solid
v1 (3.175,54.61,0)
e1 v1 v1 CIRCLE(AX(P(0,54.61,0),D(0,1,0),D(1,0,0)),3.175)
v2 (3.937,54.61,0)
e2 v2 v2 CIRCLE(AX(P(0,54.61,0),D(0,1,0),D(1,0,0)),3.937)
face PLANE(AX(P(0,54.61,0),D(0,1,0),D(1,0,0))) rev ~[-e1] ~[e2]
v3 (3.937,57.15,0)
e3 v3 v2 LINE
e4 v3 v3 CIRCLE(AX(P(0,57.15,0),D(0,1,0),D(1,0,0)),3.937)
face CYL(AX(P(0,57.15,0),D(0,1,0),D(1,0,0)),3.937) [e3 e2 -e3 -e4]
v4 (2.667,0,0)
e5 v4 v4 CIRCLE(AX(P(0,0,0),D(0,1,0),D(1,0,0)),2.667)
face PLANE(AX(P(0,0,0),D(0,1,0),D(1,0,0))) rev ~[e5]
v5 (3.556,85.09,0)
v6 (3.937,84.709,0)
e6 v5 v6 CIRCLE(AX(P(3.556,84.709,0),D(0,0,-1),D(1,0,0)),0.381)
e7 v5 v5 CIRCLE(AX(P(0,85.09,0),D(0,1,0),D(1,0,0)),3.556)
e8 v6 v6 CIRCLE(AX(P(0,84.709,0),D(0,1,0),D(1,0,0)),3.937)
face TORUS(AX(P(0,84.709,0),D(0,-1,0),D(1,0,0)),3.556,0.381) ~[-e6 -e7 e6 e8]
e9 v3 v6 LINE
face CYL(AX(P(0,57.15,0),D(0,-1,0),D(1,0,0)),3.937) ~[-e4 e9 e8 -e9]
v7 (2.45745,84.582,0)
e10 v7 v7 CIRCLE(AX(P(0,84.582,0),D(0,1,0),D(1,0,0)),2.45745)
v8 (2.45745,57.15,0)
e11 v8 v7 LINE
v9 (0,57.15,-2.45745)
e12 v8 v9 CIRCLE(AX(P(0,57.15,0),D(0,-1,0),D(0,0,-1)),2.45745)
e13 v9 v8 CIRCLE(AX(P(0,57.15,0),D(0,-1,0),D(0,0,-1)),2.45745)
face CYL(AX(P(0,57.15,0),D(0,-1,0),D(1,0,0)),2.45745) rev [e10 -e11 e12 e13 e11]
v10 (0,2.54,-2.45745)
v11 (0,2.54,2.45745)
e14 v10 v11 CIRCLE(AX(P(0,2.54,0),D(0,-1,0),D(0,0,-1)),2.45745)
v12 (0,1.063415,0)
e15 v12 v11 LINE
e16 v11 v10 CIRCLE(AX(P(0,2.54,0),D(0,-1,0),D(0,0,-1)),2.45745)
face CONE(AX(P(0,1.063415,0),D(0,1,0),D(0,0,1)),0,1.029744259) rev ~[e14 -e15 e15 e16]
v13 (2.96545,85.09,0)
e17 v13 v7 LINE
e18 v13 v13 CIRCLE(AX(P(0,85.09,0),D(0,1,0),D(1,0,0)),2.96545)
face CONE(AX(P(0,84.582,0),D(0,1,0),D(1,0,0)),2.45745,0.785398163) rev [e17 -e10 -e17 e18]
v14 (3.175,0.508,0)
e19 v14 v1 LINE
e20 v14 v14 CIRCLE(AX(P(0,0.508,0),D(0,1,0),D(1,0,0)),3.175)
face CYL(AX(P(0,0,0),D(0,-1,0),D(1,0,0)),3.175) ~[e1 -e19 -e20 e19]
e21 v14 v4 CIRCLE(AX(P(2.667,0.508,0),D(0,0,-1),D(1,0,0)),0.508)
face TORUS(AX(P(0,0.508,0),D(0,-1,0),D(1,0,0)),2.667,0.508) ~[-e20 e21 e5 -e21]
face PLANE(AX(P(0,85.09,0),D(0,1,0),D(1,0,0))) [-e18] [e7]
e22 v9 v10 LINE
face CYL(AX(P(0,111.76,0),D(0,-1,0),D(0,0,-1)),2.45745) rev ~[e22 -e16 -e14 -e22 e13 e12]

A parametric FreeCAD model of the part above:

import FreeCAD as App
import Part
import Sketcher
Q = App.Units.Quantity


def edges_at(feature, points):
    """Names of the edges that pass closest to the given points."""
    edges = feature.Shape.Edges
    near = lambda p: min(range(len(edges)), key=lambda i: edges[i].distToShape(Part.Vertex(*p))[0])
    return sorted({f"Edge{near(p) + 1}" for p in points})

doc = App.newDocument("Part")
body = doc.addObject("PartDesign::Body", "Body")

# Sketch on XZ plane
sketch1 = body.newObject("Sketcher::SketchObject", "Sketch")
sketch1.AttachmentSupport = (doc.getObject("XZ_Plane"), [""])
sketch1.MapMode = "FlatFace"
sketch1.addGeometry(Part.Circle(App.Vector(0, 0, 0), App.Vector(0, 0, 1), 3.2), False)
sketch1.addConstraint(Sketcher.Constraint("Coincident", 0, 3, -1, 1))
sketch1.addConstraint(Sketcher.Constraint("Diameter", 0, Q("0.25 in")))
pad1 = body.newObject("PartDesign::Pad", "Pad")
pad1.Profile = sketch1
pad1.Length = Q("2.25 in")
pad1.Reversed = True

# Sketch on XZ plane
sketch2 = body.newObject("Sketcher::SketchObject", "Sketch001")
sketch2.AttachmentSupport = (doc.getObject("XZ_Plane"), [""])
sketch2.MapMode = "FlatFace"
sketch2.AttachmentOffset = App.Placement(App.Vector(0, 0, -2.25 * 25.4), App.Rotation())
sketch2.addGeometry(Part.Circle(App.Vector(0, 0, 0), App.Vector(0, 0, 1), 2.5), False)
sketch2.addConstraint(Sketcher.Constraint("Coincident", 0, 3, -1, 1))
sketch2.addConstraint(Sketcher.Constraint("Diameter", 0, Q("0.1935 in")))
doc.recompute()
hole = body.newObject("PartDesign::Hole", "Hole")
hole.Profile = sketch2
hole.ThreadType = "None"
hole.Diameter = Q("0.1935 in")
hole.DepthType = "Dimension"
hole.Depth = Q("2.15 in")
hole.DrillPoint = "Angled"
hole.DrillPointAngle = 118
hole.Reversed = True

# Sketch on XZ plane
sketch3 = body.newObject("Sketcher::SketchObject", "Sketch002")
sketch3.AttachmentSupport = (doc.getObject("XZ_Plane"), [""])
sketch3.MapMode = "FlatFace"
sketch3.AttachmentOffset = App.Placement(App.Vector(0, 0, -2.25 * 25.4), App.Rotation())
sketch3.addGeometry(Part.Circle(App.Vector(0, 0, 0), App.Vector(0, 0, 1), 3.9), False)
sketch3.addGeometry(Part.Circle(App.Vector(0, 0, 0), App.Vector(0, 0, 1), 3.2), False)
sketch3.addConstraint(Sketcher.Constraint("Coincident", 0, 3, -1, 1))
sketch3.addConstraint(Sketcher.Constraint("Coincident", 1, 3, -1, 1))
sketch3.addConstraint(Sketcher.Constraint("Diameter", 0, Q("0.31 in")))
sketch3.addConstraint(Sketcher.Constraint("Diameter", 1, Q("0.25 in")))
pad2 = body.newObject("PartDesign::Pad", "Pad001")
pad2.Profile = sketch3
pad2.Length = Q("0.1 in")
doc.recompute()

fillet = body.newObject("PartDesign::Fillet", "Fillet")
fillet.Base = (pad2, edges_at(pad2, [(-3.175, 0, 0)]))
fillet.Radius = Q("0.02 in")

# Sketch on XZ plane
sketch4 = body.newObject("Sketcher::SketchObject", "Sketch003")
sketch4.AttachmentSupport = (doc.getObject("XZ_Plane"), [""])
sketch4.MapMode = "FlatFace"
sketch4.AttachmentOffset = App.Placement(App.Vector(0, 0, -2.25 * 25.4), App.Rotation())
sketch4.addGeometry(Part.Circle(App.Vector(0, 0, 0), App.Vector(0, 0, 1), 3.9), False)
sketch4.addGeometry(Part.Circle(App.Vector(0, 0, 0), App.Vector(0, 0, 1), 2.5), False)
sketch4.addConstraint(Sketcher.Constraint("Coincident", 0, 3, -1, 1))
sketch4.addConstraint(Sketcher.Constraint("Coincident", 1, 3, -1, 1))
sketch4.addConstraint(Sketcher.Constraint("Diameter", 0, Q("0.31 in")))
sketch4.addConstraint(Sketcher.Constraint("Diameter", 1, Q("0.1935 in")))
pad3 = body.newObject("PartDesign::Pad", "Pad002")
pad3.Profile = sketch4
pad3.Length = Q("1.1 in")
pad3.Reversed = True
doc.recompute()

chamfer = body.newObject("PartDesign::Chamfer", "Chamfer")
chamfer.Base = (pad3, edges_at(pad3, [(-2.457, 85.09, 0)]))
chamfer.Size = Q("0.02 in")
doc.recompute()

fillet2 = body.newObject("PartDesign::Fillet", "Fillet001")
fillet2.Base = (chamfer, edges_at(chamfer, [(-3.937, 85.09, 0)]))
fillet2.Radius = Q("0.015 in")

doc.recompute()
